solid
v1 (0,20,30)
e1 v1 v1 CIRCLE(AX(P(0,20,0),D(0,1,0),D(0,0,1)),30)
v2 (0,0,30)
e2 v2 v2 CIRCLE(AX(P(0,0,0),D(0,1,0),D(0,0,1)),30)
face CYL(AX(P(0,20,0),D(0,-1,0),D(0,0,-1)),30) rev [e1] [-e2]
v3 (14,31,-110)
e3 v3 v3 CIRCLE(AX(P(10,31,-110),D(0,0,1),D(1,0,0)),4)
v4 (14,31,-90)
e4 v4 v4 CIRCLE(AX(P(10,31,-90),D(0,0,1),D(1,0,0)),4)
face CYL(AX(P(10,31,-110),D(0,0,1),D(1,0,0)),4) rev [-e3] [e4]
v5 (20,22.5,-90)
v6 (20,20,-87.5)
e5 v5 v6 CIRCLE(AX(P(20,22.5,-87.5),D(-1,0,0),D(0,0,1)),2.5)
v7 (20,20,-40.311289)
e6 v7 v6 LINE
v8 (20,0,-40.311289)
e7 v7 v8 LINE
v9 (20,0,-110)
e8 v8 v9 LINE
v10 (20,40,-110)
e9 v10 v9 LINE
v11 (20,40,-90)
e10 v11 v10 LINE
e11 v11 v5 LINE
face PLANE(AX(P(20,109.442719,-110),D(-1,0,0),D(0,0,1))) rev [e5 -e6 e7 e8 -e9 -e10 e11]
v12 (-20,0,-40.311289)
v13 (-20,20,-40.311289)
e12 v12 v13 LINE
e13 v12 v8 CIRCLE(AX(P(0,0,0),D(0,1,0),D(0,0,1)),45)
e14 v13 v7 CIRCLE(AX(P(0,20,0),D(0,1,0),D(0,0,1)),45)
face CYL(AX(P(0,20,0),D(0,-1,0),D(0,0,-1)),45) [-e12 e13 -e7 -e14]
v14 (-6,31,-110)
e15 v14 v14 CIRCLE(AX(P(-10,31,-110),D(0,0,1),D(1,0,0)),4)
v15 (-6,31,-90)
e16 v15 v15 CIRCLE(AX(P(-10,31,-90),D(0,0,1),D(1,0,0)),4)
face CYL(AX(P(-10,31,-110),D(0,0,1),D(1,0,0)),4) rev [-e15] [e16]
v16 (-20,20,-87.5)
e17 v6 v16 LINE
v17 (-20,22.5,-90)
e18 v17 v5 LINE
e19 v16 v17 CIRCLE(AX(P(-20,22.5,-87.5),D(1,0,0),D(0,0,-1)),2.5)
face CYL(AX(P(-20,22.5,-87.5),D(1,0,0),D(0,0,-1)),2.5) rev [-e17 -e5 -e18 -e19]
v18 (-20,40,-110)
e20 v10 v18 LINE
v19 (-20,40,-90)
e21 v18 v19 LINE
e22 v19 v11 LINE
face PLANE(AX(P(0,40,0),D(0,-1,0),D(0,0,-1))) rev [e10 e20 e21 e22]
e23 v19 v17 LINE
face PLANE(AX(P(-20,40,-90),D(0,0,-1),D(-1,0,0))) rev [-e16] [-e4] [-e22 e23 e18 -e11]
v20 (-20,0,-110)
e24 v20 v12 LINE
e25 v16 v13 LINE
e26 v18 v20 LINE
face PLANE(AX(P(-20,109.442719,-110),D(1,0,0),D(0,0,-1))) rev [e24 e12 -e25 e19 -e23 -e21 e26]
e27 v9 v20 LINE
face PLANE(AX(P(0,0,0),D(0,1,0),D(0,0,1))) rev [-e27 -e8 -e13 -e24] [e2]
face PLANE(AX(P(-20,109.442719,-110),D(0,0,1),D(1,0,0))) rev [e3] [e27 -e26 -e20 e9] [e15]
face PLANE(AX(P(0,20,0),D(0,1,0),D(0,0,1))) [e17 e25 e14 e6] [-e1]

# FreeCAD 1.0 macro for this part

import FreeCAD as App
import Part
import Sketcher

V = App.Vector


def edges_at(feature, points):
    """Names of the edges that pass closest to the given points."""
    edges = feature.Shape.Edges
    near = lambda p: min(range(len(edges)), key=lambda i: edges[i].distToShape(Part.Vertex(*p))[0])
    return sorted({f"Edge{near(p) + 1}" for p in points})

doc = App.newDocument("Part")
params = doc.addObject("Spreadsheet::Sheet", "Params")
for row, (alias, value) in enumerate([
    ("sketch1_diameter", "90 mm"),
    ("sketch1_diameter2", "60 mm"),
    ("pad1_length", "20 mm"),
    ("sketch2_width", "40 mm"),
    ("sketch2_height", "80 mm"),
    ("pad2_length", "20 mm"),
    ("sketch3_width", "40 mm"),
    ("sketch3_height", "20 mm"),
    ("pad3_length", "20 mm"),
    ("fillet_radius", "2.5 mm"),
    ("sketch4_diameter", "8 mm"),
], start=1):
    params.set(f"A{row}", alias)
    params.set(f"B{row}", "=" + value)
    params.setAlias(f"B{row}", alias)

body = doc.addObject("PartDesign::Body", "Body")

# Sketch on XZ plane
sketch1 = doc.addObject("Sketcher::SketchObject", "Sketch")
body.addObject(sketch1)
sketch1.AttachmentSupport = (doc.XZ_Plane, [""])
sketch1.MapMode = "FlatFace"
sketch1.addGeometry(Part.Circle(V(0, 0, 0), V(0, 0, 1), 45), False)
sketch1.addGeometry(Part.Circle(V(0, 0, 0), V(0, 0, 1), 30), False)
sketch1.addConstraint(Sketcher.Constraint("Coincident", 0, 3, -1, 1))
sketch1.addConstraint(Sketcher.Constraint("Coincident", 1, 3, -1, 1))
sketch1.addConstraint(Sketcher.Constraint("Diameter", 0, 90.0))
sketch1.addConstraint(Sketcher.Constraint("Diameter", 1, 60.0))
sketch1.setExpression("Constraints[2]", "Params.sketch1_diameter")
sketch1.setExpression("Constraints[3]", "Params.sketch1_diameter2")
pad1 = doc.addObject("PartDesign::Pad", "Pad")
body.addObject(pad1)
pad1.Profile = sketch1
pad1.setExpression("Length", "Params.pad1_length")
pad1.Reversed = True

# Sketch on XZ plane
sketch2 = doc.addObject("Sketcher::SketchObject", "Sketch001")
body.addObject(sketch2)
sketch2.AttachmentSupport = (doc.XZ_Plane, [""])
sketch2.MapMode = "FlatFace"
sketch2.addGeometry(Part.LineSegment(V(-20, -110, 0), V(-20, -30, 0)), False)
sketch2.addGeometry(Part.LineSegment(V(-20, -30, 0), V(20, -30, 0)), False)
sketch2.addGeometry(Part.LineSegment(V(20, -30, 0), V(20, -110, 0)), False)
sketch2.addGeometry(Part.LineSegment(V(20, -110, 0), V(-20, -110, 0)), False)
sketch2.addConstraint(Sketcher.Constraint("Coincident", 0, 2, 1, 1))
sketch2.addConstraint(Sketcher.Constraint("Coincident", 1, 2, 2, 1))
sketch2.addConstraint(Sketcher.Constraint("Coincident", 2, 2, 3, 1))
sketch2.addConstraint(Sketcher.Constraint("Coincident", 3, 2, 0, 1))
sketch2.addConstraint(Sketcher.Constraint("Vertical", 0))
sketch2.addConstraint(Sketcher.Constraint("Horizontal", 1))
sketch2.addConstraint(Sketcher.Constraint("Vertical", 2))
sketch2.addConstraint(Sketcher.Constraint("Horizontal", 3))
sketch2.addConstraint(Sketcher.Constraint("DistanceX", 1, 1, 1, 2, 40.0))
sketch2.addConstraint(Sketcher.Constraint("DistanceY", 0, 1, 0, 2, 80.0))
sketch2.addConstraint(Sketcher.Constraint("DistanceX", 0, 2, -1, 1, 20.0))
sketch2.addConstraint(Sketcher.Constraint("DistanceY", 0, 2, -1, 1, 30.0))
sketch2.setExpression("Constraints[8]", "Params.sketch2_width")
sketch2.setExpression("Constraints[9]", "Params.sketch2_height")
pad2 = doc.addObject("PartDesign::Pad", "Pad001")
body.addObject(pad2)
pad2.Profile = sketch2
pad2.setExpression("Length", "Params.pad2_length")
pad2.Reversed = True

# Sketch on XZ plane
sketch3 = doc.addObject("Sketcher::SketchObject", "Sketch002")
body.addObject(sketch3)
sketch3.AttachmentSupport = (doc.XZ_Plane, [""])
sketch3.MapMode = "FlatFace"
sketch3.AttachmentOffset = App.Placement(V(0, 0, -20), App.Rotation())
sketch3.addGeometry(Part.LineSegment(V(-20, -110, 0), V(-20, -90, 0)), False)
sketch3.addGeometry(Part.LineSegment(V(-20, -90, 0), V(20, -90, 0)), False)
sketch3.addGeometry(Part.LineSegment(V(20, -90, 0), V(20, -110, 0)), False)
sketch3.addGeometry(Part.LineSegment(V(20, -110, 0), V(-20, -110, 0)), False)
sketch3.addConstraint(Sketcher.Constraint("Coincident", 0, 2, 1, 1))
sketch3.addConstraint(Sketcher.Constraint("Coincident", 1, 2, 2, 1))
sketch3.addConstraint(Sketcher.Constraint("Coincident", 2, 2, 3, 1))
sketch3.addConstraint(Sketcher.Constraint("Coincident", 3, 2, 0, 1))
sketch3.addConstraint(Sketcher.Constraint("Vertical", 0))
sketch3.addConstraint(Sketcher.Constraint("Horizontal", 1))
sketch3.addConstraint(Sketcher.Constraint("Vertical", 2))
sketch3.addConstraint(Sketcher.Constraint("Horizontal", 3))
sketch3.addConstraint(Sketcher.Constraint("DistanceX", 1, 1, 1, 2, 40.0))
sketch3.addConstraint(Sketcher.Constraint("DistanceY", 0, 1, 0, 2, 20.0))
sketch3.addConstraint(Sketcher.Constraint("DistanceX", 0, 2, -1, 1, 20.0))
sketch3.addConstraint(Sketcher.Constraint("DistanceY", 0, 2, -1, 1, 90.0))
sketch3.setExpression("Constraints[8]", "Params.sketch3_width")
sketch3.setExpression("Constraints[9]", "Params.sketch3_height")
pad3 = doc.addObject("PartDesign::Pad", "Pad002")
body.addObject(pad3)
pad3.Profile = sketch3
pad3.setExpression("Length", "Params.pad3_length")
pad3.Reversed = True
doc.recompute()

fillet = doc.addObject("PartDesign::Fillet", "Fillet")
body.addObject(fillet)
fillet.Base = (pad3, edges_at(pad3, [(0, 20, -90)]))
fillet.setExpression("Radius", "Params.fillet_radius")

# Sketch on XY plane
sketch4 = doc.addObject("Sketcher::SketchObject", "Sketch003")
body.addObject(sketch4)
sketch4.AttachmentSupport = (doc.XY_Plane, [""])
sketch4.MapMode = "FlatFace"
sketch4.AttachmentOffset = App.Placement(V(0, 0, -90), App.Rotation())
sketch4.addGeometry(Part.Circle(V(10, 31, 0), V(0, 0, 1), 4), False)
sketch4.addGeometry(Part.Circle(V(-10, 31, 0), V(0, 0, 1), 4), False)
sketch4.addConstraint(Sketcher.Constraint("Equal", 0, 1))
sketch4.addConstraint(Sketcher.Constraint("Symmetric", 0, 3, 1, 3, -2))
sketch4.addConstraint(Sketcher.Constraint("Diameter", 0, 8.0))
sketch4.addConstraint(Sketcher.Constraint("DistanceX", -1, 1, 0, 3, 10.0))
sketch4.addConstraint(Sketcher.Constraint("DistanceY", -1, 1, 0, 3, 31.0))
sketch4.setExpression("Constraints[2]", "Params.sketch4_diameter")
pocket1 = doc.addObject("PartDesign::Pocket", "Pocket")
body.addObject(pocket1)
pocket1.Profile = sketch4
pocket1.Type = "ThroughAll"

doc.recompute()
